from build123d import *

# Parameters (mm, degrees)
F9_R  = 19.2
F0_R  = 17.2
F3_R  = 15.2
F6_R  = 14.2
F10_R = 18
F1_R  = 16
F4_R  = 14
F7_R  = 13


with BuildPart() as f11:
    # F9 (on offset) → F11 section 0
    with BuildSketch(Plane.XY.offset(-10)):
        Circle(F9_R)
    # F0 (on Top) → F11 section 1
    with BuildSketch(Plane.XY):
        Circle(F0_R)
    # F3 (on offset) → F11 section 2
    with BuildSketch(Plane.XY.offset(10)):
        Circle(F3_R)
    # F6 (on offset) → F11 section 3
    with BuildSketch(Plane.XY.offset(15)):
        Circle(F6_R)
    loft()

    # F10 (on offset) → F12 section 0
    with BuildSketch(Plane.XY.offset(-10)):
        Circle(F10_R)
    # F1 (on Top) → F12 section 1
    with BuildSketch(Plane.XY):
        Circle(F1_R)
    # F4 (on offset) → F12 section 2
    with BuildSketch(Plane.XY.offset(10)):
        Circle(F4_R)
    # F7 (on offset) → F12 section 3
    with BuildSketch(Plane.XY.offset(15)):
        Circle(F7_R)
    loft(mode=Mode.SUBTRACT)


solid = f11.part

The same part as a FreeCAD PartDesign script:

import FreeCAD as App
import Part
import Sketcher

V = App.Vector

doc = App.newDocument("Part")
body = doc.addObject("PartDesign::Body", "Body")

# Sketch on XY plane
sketch1 = body.newObject("Sketcher::SketchObject", "Sketch")
sketch1.AttachmentSupport = (doc.getObject("XY_Plane"), [""])
sketch1.MapMode = "FlatFace"
sketch1.AttachmentOffset = App.Placement(V(0, 0, -10), App.Rotation())
sketch1.addGeometry(Part.Circle(V(0, 0, 0), V(0, 0, 1), 19), False)
sketch1.addConstraint(Sketcher.Constraint("Coincident", 0, 3, -1, 1))
sketch1.addConstraint(Sketcher.Constraint("Diameter", 0, 38.4))

# Sketch on XY plane
sketch2 = body.newObject("Sketcher::SketchObject", "Sketch001")
sketch2.AttachmentSupport = (doc.getObject("XY_Plane"), [""])
sketch2.MapMode = "FlatFace"
sketch2.addGeometry(Part.Circle(V(0, 0, 0), V(0, 0, 1), 17), False)
sketch2.addConstraint(Sketcher.Constraint("Coincident", 0, 3, -1, 1))
sketch2.addConstraint(Sketcher.Constraint("Diameter", 0, 34.4))

# Sketch on XY plane
sketch3 = body.newObject("Sketcher::SketchObject", "Sketch002")
sketch3.AttachmentSupport = (doc.getObject("XY_Plane"), [""])
sketch3.MapMode = "FlatFace"
sketch3.AttachmentOffset = App.Placement(V(0, 0, 10), App.Rotation())
sketch3.addGeometry(Part.Circle(V(0, 0, 0), V(0, 0, 1), 15), False)
sketch3.addConstraint(Sketcher.Constraint("Coincident", 0, 3, -1, 1))
sketch3.addConstraint(Sketcher.Constraint("Diameter", 0, 30.4))

# Sketch on XY plane
sketch4 = body.newObject("Sketcher::SketchObject", "Sketch003")
sketch4.AttachmentSupport = (doc.getObject("XY_Plane"), [""])
sketch4.MapMode = "FlatFace"
sketch4.AttachmentOffset = App.Placement(V(0, 0, 15), App.Rotation())
sketch4.addGeometry(Part.Circle(V(0, 0, 0), V(0, 0, 1), 14), False)
sketch4.addConstraint(Sketcher.Constraint("Coincident", 0, 3, -1, 1))
sketch4.addConstraint(Sketcher.Constraint("Diameter", 0, 28.4))

additiveloft = body.newObject("PartDesign::AdditiveLoft", "AdditiveLoft")
additiveloft.Profile = sketch1
additiveloft.Sections = [sketch2, sketch3, sketch4]

# Sketch on XY plane
sketch5 = body.newObject("Sketcher::SketchObject", "Sketch004")
sketch5.AttachmentSupport = (doc.getObject("XY_Plane"), [""])
sketch5.MapMode = "FlatFace"
sketch5.AttachmentOffset = App.Placement(V(0, 0, -10), App.Rotation())
sketch5.addGeometry(Part.Circle(V(0, 0, 0), V(0, 0, 1), 18), False)
sketch5.addConstraint(Sketcher.Constraint("Coincident", 0, 3, -1, 1))
sketch5.addConstraint(Sketcher.Constraint("Diameter", 0, 36.0))

# Sketch on XY plane
sketch6 = body.newObject("Sketcher::SketchObject", "Sketch005")
sketch6.AttachmentSupport = (doc.getObject("XY_Plane"), [""])
sketch6.MapMode = "FlatFace"
sketch6.addGeometry(Part.Circle(V(0, 0, 0), V(0, 0, 1), 16), False)
sketch6.addConstraint(Sketcher.Constraint("Coincident", 0, 3, -1, 1))
sketch6.addConstraint(Sketcher.Constraint("Diameter", 0, 32.0))

# Sketch on XY plane
sketch7 = body.newObject("Sketcher::SketchObject", "Sketch006")
sketch7.AttachmentSupport = (doc.getObject("XY_Plane"), [""])
sketch7.MapMode = "FlatFace"
sketch7.AttachmentOffset = App.Placement(V(0, 0, 10), App.Rotation())
sketch7.addGeometry(Part.Circle(V(0, 0, 0), V(0, 0, 1), 14), False)
sketch7.addConstraint(Sketcher.Constraint("Coincident", 0, 3, -1, 1))
sketch7.addConstraint(Sketcher.Constraint("Diameter", 0, 28.0))

# Sketch on XY plane
sketch8 = body.newObject("Sketcher::SketchObject", "Sketch007")
sketch8.AttachmentSupport = (doc.getObject("XY_Plane"), [""])
sketch8.MapMode = "FlatFace"
sketch8.AttachmentOffset = App.Placement(V(0, 0, 15), App.Rotation())
sketch8.addGeometry(Part.Circle(V(0, 0, 0), V(0, 0, 1), 13), False)
sketch8.addConstraint(Sketcher.Constraint("Coincident", 0, 3, -1, 1))
sketch8.addConstraint(Sketcher.Constraint("Diameter", 0, 26.0))

subtractiveloft = body.newObject("PartDesign::SubtractiveLoft", "SubtractiveLoft")
subtractiveloft.Profile = sketch5
subtractiveloft.Sections = [sketch6, sketch7, sketch8]

doc.recompute()
